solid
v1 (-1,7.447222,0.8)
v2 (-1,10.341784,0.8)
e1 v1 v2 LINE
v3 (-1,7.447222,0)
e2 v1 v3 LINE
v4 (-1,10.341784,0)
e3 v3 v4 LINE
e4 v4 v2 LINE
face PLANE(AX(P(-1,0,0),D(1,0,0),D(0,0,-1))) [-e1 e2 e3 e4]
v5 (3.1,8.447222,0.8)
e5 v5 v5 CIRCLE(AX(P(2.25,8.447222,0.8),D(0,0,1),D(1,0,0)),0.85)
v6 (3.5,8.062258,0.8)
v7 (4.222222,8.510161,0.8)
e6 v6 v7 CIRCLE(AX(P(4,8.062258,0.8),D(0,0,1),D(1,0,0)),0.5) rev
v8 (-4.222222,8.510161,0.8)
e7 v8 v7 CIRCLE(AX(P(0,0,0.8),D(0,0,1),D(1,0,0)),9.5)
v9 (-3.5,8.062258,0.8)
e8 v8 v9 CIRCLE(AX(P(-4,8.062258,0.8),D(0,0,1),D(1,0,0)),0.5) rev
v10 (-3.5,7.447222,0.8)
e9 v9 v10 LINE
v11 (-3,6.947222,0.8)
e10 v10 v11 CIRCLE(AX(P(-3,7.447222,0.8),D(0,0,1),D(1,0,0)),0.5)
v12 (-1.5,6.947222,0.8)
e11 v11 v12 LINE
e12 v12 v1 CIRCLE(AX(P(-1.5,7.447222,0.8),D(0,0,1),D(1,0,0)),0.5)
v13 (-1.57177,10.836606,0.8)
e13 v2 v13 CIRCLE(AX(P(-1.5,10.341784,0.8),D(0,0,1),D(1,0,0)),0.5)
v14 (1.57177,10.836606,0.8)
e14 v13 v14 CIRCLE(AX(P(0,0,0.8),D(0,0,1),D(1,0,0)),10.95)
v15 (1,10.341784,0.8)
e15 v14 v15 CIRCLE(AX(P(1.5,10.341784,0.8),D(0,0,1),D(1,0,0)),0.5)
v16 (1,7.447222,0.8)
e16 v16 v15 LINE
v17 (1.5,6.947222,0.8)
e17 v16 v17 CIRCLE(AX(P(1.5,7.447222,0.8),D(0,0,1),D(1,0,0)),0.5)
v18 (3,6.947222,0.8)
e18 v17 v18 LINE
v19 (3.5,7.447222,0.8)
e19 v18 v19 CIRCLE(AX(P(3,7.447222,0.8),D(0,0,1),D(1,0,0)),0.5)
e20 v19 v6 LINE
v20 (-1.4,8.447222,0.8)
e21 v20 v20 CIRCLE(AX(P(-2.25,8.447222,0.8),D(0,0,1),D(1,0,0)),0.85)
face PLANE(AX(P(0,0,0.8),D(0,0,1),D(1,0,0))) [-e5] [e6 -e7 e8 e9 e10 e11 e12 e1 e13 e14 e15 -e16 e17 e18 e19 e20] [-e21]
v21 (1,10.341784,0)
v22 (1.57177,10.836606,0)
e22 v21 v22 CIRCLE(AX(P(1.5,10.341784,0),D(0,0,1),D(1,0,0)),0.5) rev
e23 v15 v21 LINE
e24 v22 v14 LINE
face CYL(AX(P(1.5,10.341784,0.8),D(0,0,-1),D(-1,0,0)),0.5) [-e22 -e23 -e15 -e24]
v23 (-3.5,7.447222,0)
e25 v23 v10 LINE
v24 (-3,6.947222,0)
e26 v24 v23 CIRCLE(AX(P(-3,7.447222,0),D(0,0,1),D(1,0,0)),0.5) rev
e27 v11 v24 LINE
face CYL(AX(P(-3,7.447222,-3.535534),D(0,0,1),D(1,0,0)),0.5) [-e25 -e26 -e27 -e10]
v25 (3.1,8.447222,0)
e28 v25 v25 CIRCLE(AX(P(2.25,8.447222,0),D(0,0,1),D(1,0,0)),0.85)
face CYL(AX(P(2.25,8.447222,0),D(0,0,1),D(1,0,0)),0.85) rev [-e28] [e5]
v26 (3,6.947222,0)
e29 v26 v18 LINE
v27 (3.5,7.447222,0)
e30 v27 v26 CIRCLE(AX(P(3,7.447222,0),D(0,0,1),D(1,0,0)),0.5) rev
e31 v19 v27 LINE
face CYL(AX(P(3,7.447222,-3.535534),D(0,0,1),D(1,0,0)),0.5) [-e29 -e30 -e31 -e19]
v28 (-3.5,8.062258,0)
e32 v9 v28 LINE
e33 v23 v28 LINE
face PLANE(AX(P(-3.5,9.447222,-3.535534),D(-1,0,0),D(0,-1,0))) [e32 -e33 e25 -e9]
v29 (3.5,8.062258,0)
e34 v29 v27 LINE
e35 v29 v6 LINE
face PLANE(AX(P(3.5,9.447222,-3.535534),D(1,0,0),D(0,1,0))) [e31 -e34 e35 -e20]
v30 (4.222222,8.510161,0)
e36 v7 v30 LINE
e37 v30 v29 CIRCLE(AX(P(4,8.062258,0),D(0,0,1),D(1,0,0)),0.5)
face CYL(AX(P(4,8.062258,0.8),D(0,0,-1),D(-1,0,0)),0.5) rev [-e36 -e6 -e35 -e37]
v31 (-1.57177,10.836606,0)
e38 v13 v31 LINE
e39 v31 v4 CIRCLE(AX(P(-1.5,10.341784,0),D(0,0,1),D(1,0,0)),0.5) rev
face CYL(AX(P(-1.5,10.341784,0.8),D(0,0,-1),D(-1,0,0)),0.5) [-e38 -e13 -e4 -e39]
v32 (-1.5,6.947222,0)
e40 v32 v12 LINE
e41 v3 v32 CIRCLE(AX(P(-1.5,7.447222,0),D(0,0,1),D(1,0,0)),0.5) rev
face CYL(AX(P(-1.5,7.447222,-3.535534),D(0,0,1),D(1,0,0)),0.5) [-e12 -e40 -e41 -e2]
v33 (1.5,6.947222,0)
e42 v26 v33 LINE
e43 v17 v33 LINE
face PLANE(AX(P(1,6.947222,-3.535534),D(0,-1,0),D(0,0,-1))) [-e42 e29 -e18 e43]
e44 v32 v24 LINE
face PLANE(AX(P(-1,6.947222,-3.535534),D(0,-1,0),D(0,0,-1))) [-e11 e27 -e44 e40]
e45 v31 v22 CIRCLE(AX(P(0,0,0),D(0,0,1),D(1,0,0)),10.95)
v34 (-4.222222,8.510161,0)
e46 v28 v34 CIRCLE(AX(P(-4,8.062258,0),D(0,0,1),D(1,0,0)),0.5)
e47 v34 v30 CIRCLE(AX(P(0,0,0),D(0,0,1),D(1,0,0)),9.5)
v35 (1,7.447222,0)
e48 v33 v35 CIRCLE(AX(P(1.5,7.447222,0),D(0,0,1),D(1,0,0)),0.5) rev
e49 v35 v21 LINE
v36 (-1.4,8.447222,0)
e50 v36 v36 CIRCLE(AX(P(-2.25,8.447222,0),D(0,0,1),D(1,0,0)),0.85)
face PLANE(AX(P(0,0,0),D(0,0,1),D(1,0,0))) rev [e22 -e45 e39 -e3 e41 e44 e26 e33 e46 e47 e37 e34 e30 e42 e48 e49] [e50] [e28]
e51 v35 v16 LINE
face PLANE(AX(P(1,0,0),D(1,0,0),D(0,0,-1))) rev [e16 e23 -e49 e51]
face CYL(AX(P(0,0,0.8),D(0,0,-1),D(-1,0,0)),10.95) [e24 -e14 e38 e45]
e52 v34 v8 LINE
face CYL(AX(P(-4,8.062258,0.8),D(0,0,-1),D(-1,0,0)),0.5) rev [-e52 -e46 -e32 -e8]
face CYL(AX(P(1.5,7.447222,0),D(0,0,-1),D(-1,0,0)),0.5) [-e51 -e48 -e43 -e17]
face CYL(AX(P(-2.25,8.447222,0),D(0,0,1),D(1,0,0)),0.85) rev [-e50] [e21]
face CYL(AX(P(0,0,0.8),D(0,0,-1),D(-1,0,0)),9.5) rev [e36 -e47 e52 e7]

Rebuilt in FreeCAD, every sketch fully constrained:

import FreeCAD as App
import Part
import Sketcher


def edges_at(feature, points):
    """Names of the edges that pass closest to the given points."""
    edges = feature.Shape.Edges
    near = lambda p: min(range(len(edges)), key=lambda i: edges[i].distToShape(Part.Vertex(*p))[0])
    return sorted({f"Edge{near(p) + 1}" for p in points})

doc = App.newDocument("Part")
body = doc.addObject("PartDesign::Body", "Body")

sketch1 = doc.addObject("Sketcher::SketchObject", "Sketch")
body.addObject(sketch1)
sketch1.AttachmentSupport = (doc.XY_Plane, [""])
sketch1.MapMode = "FlatFace"
sketch1.addGeometry(Part.Circle(App.Vector(0, 0, 0), App.Vector(0, 0, 1), 11), False)
sketch1.addGeometry(Part.Circle(App.Vector(0, 0, 0), App.Vector(0, 0, 1), 10), False)
sketch1.addConstraint(Sketcher.Constraint("Coincident", 0, 3, -1, 1))
sketch1.addConstraint(Sketcher.Constraint("Coincident", 1, 3, -1, 1))
sketch1.addConstraint(Sketcher.Constraint("Diameter", 1, 19.0))
sketch1.addConstraint(Sketcher.Constraint("Diameter", 0, 21.9))
pad1 = doc.addObject("PartDesign::Pad", "Pad")
body.addObject(pad1)
pad1.Profile = sketch1
pad1.Length = 0.8

sketch2 = doc.addObject("Sketcher::SketchObject", "Sketch001")
body.addObject(sketch2)
sketch2.AttachmentSupport = (doc.XY_Plane, [""])
sketch2.MapMode = "FlatFace"
sketch2.AttachmentOffset = App.Placement(App.Vector(0, 0, 0.8), App.Rotation())
sketch2.addGeometry(Part.LineSegment(App.Vector(-1, 14.8, 0), App.Vector(-1, 0, 0)), False)
sketch2.addGeometry(Part.LineSegment(App.Vector(-1, 0, 0), App.Vector(1, 0, 0)), False)
sketch2.addGeometry(Part.LineSegment(App.Vector(1, 0, 0), App.Vector(1, 14.8, 0)), False)
sketch2.addGeometry(Part.LineSegment(App.Vector(1, 14.8, 0), App.Vector(-1, 14.8, 0)), False)
sketch2.addConstraint(Sketcher.Constraint("Coincident", 0, 2, 1, 1))
sketch2.addConstraint(Sketcher.Constraint("Coincident", 1, 2, 2, 1))
sketch2.addConstraint(Sketcher.Constraint("Coincident", 2, 2, 3, 1))
sketch2.addConstraint(Sketcher.Constraint("Coincident", 3, 2, 0, 1))
sketch2.addConstraint(Sketcher.Constraint("Vertical", 0))
sketch2.addConstraint(Sketcher.Constraint("Horizontal", 1))
sketch2.addConstraint(Sketcher.Constraint("Vertical", 2))
sketch2.addConstraint(Sketcher.Constraint("Horizontal", 3))
sketch2.addConstraint(Sketcher.Constraint("Symmetric", 0, 2, 1, 2, -1, 1))
sketch2.addConstraint(Sketcher.Constraint("DistanceX", 1, 1, 1, 2, 2.0))
sketch2.addConstraint(Sketcher.Constraint("DistanceY", 0, 2, 0, 1, 14.78901))
pocket1 = doc.addObject("PartDesign::Pocket", "Pocket")
body.addObject(pocket1)
pocket1.Profile = sketch2
pocket1.Type = "ThroughAll"

sketch3 = doc.addObject("Sketcher::SketchObject", "Sketch002")
body.addObject(sketch3)
sketch3.AttachmentSupport = (doc.XY_Plane, [""])
sketch3.MapMode = "FlatFace"
sketch3.AttachmentOffset = App.Placement(App.Vector(0, 0, 0.8), App.Rotation())
sketch3.addGeometry(Part.LineSegment(App.Vector(1, 9.4, 0), App.Vector(1, 6.9, 0)), False)
sketch3.addGeometry(Part.LineSegment(App.Vector(1, 6.9, 0), App.Vector(3.5, 6.9, 0)), False)
sketch3.addGeometry(Part.LineSegment(App.Vector(3.5, 6.9, 0), App.Vector(3.5, 9.4, 0)), False)
sketch3.addGeometry(Part.LineSegment(App.Vector(3.5, 9.4, 0), App.Vector(1, 9.4, 0)), False)
sketch3.addGeometry(Part.LineSegment(App.Vector(-3.5, 9.4, 0), App.Vector(-3.5, 6.9, 0)), False)
sketch3.addGeometry(Part.LineSegment(App.Vector(-3.5, 6.9, 0), App.Vector(-1, 6.9, 0)), False)
sketch3.addGeometry(Part.LineSegment(App.Vector(-1, 6.9, 0), App.Vector(-1, 9.4, 0)), False)
sketch3.addGeometry(Part.LineSegment(App.Vector(-1, 9.4, 0), App.Vector(-3.5, 9.4, 0)), False)
sketch3.addConstraint(Sketcher.Constraint("Coincident", 0, 2, 1, 1))
sketch3.addConstraint(Sketcher.Constraint("Coincident", 1, 2, 2, 1))
sketch3.addConstraint(Sketcher.Constraint("Coincident", 2, 2, 3, 1))
sketch3.addConstraint(Sketcher.Constraint("Coincident", 3, 2, 0, 1))
sketch3.addConstraint(Sketcher.Constraint("Coincident", 4, 2, 5, 1))
sketch3.addConstraint(Sketcher.Constraint("Coincident", 5, 2, 6, 1))
sketch3.addConstraint(Sketcher.Constraint("Coincident", 6, 2, 7, 1))
sketch3.addConstraint(Sketcher.Constraint("Coincident", 7, 2, 4, 1))
sketch3.addConstraint(Sketcher.Constraint("Vertical", 0))
sketch3.addConstraint(Sketcher.Constraint("Horizontal", 1))
sketch3.addConstraint(Sketcher.Constraint("Vertical", 2))
sketch3.addConstraint(Sketcher.Constraint("Horizontal", 3))
sketch3.addConstraint(Sketcher.Constraint("Vertical", 4))
sketch3.addConstraint(Sketcher.Constraint("Horizontal", 5))
sketch3.addConstraint(Sketcher.Constraint("Vertical", 6))
sketch3.addConstraint(Sketcher.Constraint("Horizontal", 7))
sketch3.addConstraint(Sketcher.Constraint("Symmetric", 1, 2, 4, 2, -2))
sketch3.addConstraint(Sketcher.Constraint("Symmetric", 3, 2, 6, 2, -2))
sketch3.addConstraint(Sketcher.Constraint("Equal", 7, 0))
sketch3.addConstraint(Sketcher.Constraint("DistanceX", 1, 1, 1, 2, 2.5))
sketch3.addConstraint(Sketcher.Constraint("DistanceX", -1, 1, 0, 2, 1.0))
sketch3.addConstraint(Sketcher.Constraint("DistanceY", -1, 1, 0, 2, 6.947222))
pad2 = doc.addObject("PartDesign::Pad", "Pad001")
body.addObject(pad2)
pad2.Profile = sketch3
pad2.Length = 0.8
pad2.Reversed = True
doc.recompute()

fillet = doc.addObject("PartDesign::Fillet", "Fillet")
body.addObject(fillet)
fillet.Base = (pad2, edges_at(pad2, [
    (1, 10.904, 0.4),
    (-1, 10.904, 0.4),
    (3.5, 8.832, 0.4),
    (-3.5, 8.832, 0.4),
]))
fillet.Radius = 0.5
doc.recompute()

fillet2 = doc.addObject("PartDesign::Fillet", "Fillet001")
body.addObject(fillet2)
fillet2.Base = (fillet, edges_at(fillet, [
    (1, 6.947, 0.4),
    (3.5, 6.947, 0.4),
    (-1, 6.947, 0.4),
    (-3.5, 6.947, 0.4),
]))
fillet2.Radius = 0.5

sketch4 = doc.addObject("Sketcher::SketchObject", "Sketch003")
body.addObject(sketch4)
sketch4.AttachmentSupport = (doc.XY_Plane, [""])
sketch4.MapMode = "FlatFace"
sketch4.AttachmentOffset = App.Placement(App.Vector(0, 0, 0.8), App.Rotation())
sketch4.addGeometry(Part.Circle(App.Vector(2.2, 8.4, 0), App.Vector(0, 0, 1), 0.8), False)
sketch4.addGeometry(Part.Circle(App.Vector(-2.2, 8.4, 0), App.Vector(0, 0, 1), 0.8), False)
sketch4.addConstraint(Sketcher.Constraint("Equal", 0, 1))
sketch4.addConstraint(Sketcher.Constraint("Symmetric", 0, 3, 1, 3, -2))
sketch4.addConstraint(Sketcher.Constraint("Diameter", 0, 1.7))
sketch4.addConstraint(Sketcher.Constraint("DistanceX", 1, 3, 0, 3, 4.5))
sketch4.addConstraint(Sketcher.Constraint("DistanceY", -1, 1, 0, 3, 8.447222))
pocket2 = doc.addObject("PartDesign::Pocket", "Pocket001")
body.addObject(pocket2)
pocket2.Profile = sketch4
pocket2.Type = "ThroughAll"

doc.recompute()
